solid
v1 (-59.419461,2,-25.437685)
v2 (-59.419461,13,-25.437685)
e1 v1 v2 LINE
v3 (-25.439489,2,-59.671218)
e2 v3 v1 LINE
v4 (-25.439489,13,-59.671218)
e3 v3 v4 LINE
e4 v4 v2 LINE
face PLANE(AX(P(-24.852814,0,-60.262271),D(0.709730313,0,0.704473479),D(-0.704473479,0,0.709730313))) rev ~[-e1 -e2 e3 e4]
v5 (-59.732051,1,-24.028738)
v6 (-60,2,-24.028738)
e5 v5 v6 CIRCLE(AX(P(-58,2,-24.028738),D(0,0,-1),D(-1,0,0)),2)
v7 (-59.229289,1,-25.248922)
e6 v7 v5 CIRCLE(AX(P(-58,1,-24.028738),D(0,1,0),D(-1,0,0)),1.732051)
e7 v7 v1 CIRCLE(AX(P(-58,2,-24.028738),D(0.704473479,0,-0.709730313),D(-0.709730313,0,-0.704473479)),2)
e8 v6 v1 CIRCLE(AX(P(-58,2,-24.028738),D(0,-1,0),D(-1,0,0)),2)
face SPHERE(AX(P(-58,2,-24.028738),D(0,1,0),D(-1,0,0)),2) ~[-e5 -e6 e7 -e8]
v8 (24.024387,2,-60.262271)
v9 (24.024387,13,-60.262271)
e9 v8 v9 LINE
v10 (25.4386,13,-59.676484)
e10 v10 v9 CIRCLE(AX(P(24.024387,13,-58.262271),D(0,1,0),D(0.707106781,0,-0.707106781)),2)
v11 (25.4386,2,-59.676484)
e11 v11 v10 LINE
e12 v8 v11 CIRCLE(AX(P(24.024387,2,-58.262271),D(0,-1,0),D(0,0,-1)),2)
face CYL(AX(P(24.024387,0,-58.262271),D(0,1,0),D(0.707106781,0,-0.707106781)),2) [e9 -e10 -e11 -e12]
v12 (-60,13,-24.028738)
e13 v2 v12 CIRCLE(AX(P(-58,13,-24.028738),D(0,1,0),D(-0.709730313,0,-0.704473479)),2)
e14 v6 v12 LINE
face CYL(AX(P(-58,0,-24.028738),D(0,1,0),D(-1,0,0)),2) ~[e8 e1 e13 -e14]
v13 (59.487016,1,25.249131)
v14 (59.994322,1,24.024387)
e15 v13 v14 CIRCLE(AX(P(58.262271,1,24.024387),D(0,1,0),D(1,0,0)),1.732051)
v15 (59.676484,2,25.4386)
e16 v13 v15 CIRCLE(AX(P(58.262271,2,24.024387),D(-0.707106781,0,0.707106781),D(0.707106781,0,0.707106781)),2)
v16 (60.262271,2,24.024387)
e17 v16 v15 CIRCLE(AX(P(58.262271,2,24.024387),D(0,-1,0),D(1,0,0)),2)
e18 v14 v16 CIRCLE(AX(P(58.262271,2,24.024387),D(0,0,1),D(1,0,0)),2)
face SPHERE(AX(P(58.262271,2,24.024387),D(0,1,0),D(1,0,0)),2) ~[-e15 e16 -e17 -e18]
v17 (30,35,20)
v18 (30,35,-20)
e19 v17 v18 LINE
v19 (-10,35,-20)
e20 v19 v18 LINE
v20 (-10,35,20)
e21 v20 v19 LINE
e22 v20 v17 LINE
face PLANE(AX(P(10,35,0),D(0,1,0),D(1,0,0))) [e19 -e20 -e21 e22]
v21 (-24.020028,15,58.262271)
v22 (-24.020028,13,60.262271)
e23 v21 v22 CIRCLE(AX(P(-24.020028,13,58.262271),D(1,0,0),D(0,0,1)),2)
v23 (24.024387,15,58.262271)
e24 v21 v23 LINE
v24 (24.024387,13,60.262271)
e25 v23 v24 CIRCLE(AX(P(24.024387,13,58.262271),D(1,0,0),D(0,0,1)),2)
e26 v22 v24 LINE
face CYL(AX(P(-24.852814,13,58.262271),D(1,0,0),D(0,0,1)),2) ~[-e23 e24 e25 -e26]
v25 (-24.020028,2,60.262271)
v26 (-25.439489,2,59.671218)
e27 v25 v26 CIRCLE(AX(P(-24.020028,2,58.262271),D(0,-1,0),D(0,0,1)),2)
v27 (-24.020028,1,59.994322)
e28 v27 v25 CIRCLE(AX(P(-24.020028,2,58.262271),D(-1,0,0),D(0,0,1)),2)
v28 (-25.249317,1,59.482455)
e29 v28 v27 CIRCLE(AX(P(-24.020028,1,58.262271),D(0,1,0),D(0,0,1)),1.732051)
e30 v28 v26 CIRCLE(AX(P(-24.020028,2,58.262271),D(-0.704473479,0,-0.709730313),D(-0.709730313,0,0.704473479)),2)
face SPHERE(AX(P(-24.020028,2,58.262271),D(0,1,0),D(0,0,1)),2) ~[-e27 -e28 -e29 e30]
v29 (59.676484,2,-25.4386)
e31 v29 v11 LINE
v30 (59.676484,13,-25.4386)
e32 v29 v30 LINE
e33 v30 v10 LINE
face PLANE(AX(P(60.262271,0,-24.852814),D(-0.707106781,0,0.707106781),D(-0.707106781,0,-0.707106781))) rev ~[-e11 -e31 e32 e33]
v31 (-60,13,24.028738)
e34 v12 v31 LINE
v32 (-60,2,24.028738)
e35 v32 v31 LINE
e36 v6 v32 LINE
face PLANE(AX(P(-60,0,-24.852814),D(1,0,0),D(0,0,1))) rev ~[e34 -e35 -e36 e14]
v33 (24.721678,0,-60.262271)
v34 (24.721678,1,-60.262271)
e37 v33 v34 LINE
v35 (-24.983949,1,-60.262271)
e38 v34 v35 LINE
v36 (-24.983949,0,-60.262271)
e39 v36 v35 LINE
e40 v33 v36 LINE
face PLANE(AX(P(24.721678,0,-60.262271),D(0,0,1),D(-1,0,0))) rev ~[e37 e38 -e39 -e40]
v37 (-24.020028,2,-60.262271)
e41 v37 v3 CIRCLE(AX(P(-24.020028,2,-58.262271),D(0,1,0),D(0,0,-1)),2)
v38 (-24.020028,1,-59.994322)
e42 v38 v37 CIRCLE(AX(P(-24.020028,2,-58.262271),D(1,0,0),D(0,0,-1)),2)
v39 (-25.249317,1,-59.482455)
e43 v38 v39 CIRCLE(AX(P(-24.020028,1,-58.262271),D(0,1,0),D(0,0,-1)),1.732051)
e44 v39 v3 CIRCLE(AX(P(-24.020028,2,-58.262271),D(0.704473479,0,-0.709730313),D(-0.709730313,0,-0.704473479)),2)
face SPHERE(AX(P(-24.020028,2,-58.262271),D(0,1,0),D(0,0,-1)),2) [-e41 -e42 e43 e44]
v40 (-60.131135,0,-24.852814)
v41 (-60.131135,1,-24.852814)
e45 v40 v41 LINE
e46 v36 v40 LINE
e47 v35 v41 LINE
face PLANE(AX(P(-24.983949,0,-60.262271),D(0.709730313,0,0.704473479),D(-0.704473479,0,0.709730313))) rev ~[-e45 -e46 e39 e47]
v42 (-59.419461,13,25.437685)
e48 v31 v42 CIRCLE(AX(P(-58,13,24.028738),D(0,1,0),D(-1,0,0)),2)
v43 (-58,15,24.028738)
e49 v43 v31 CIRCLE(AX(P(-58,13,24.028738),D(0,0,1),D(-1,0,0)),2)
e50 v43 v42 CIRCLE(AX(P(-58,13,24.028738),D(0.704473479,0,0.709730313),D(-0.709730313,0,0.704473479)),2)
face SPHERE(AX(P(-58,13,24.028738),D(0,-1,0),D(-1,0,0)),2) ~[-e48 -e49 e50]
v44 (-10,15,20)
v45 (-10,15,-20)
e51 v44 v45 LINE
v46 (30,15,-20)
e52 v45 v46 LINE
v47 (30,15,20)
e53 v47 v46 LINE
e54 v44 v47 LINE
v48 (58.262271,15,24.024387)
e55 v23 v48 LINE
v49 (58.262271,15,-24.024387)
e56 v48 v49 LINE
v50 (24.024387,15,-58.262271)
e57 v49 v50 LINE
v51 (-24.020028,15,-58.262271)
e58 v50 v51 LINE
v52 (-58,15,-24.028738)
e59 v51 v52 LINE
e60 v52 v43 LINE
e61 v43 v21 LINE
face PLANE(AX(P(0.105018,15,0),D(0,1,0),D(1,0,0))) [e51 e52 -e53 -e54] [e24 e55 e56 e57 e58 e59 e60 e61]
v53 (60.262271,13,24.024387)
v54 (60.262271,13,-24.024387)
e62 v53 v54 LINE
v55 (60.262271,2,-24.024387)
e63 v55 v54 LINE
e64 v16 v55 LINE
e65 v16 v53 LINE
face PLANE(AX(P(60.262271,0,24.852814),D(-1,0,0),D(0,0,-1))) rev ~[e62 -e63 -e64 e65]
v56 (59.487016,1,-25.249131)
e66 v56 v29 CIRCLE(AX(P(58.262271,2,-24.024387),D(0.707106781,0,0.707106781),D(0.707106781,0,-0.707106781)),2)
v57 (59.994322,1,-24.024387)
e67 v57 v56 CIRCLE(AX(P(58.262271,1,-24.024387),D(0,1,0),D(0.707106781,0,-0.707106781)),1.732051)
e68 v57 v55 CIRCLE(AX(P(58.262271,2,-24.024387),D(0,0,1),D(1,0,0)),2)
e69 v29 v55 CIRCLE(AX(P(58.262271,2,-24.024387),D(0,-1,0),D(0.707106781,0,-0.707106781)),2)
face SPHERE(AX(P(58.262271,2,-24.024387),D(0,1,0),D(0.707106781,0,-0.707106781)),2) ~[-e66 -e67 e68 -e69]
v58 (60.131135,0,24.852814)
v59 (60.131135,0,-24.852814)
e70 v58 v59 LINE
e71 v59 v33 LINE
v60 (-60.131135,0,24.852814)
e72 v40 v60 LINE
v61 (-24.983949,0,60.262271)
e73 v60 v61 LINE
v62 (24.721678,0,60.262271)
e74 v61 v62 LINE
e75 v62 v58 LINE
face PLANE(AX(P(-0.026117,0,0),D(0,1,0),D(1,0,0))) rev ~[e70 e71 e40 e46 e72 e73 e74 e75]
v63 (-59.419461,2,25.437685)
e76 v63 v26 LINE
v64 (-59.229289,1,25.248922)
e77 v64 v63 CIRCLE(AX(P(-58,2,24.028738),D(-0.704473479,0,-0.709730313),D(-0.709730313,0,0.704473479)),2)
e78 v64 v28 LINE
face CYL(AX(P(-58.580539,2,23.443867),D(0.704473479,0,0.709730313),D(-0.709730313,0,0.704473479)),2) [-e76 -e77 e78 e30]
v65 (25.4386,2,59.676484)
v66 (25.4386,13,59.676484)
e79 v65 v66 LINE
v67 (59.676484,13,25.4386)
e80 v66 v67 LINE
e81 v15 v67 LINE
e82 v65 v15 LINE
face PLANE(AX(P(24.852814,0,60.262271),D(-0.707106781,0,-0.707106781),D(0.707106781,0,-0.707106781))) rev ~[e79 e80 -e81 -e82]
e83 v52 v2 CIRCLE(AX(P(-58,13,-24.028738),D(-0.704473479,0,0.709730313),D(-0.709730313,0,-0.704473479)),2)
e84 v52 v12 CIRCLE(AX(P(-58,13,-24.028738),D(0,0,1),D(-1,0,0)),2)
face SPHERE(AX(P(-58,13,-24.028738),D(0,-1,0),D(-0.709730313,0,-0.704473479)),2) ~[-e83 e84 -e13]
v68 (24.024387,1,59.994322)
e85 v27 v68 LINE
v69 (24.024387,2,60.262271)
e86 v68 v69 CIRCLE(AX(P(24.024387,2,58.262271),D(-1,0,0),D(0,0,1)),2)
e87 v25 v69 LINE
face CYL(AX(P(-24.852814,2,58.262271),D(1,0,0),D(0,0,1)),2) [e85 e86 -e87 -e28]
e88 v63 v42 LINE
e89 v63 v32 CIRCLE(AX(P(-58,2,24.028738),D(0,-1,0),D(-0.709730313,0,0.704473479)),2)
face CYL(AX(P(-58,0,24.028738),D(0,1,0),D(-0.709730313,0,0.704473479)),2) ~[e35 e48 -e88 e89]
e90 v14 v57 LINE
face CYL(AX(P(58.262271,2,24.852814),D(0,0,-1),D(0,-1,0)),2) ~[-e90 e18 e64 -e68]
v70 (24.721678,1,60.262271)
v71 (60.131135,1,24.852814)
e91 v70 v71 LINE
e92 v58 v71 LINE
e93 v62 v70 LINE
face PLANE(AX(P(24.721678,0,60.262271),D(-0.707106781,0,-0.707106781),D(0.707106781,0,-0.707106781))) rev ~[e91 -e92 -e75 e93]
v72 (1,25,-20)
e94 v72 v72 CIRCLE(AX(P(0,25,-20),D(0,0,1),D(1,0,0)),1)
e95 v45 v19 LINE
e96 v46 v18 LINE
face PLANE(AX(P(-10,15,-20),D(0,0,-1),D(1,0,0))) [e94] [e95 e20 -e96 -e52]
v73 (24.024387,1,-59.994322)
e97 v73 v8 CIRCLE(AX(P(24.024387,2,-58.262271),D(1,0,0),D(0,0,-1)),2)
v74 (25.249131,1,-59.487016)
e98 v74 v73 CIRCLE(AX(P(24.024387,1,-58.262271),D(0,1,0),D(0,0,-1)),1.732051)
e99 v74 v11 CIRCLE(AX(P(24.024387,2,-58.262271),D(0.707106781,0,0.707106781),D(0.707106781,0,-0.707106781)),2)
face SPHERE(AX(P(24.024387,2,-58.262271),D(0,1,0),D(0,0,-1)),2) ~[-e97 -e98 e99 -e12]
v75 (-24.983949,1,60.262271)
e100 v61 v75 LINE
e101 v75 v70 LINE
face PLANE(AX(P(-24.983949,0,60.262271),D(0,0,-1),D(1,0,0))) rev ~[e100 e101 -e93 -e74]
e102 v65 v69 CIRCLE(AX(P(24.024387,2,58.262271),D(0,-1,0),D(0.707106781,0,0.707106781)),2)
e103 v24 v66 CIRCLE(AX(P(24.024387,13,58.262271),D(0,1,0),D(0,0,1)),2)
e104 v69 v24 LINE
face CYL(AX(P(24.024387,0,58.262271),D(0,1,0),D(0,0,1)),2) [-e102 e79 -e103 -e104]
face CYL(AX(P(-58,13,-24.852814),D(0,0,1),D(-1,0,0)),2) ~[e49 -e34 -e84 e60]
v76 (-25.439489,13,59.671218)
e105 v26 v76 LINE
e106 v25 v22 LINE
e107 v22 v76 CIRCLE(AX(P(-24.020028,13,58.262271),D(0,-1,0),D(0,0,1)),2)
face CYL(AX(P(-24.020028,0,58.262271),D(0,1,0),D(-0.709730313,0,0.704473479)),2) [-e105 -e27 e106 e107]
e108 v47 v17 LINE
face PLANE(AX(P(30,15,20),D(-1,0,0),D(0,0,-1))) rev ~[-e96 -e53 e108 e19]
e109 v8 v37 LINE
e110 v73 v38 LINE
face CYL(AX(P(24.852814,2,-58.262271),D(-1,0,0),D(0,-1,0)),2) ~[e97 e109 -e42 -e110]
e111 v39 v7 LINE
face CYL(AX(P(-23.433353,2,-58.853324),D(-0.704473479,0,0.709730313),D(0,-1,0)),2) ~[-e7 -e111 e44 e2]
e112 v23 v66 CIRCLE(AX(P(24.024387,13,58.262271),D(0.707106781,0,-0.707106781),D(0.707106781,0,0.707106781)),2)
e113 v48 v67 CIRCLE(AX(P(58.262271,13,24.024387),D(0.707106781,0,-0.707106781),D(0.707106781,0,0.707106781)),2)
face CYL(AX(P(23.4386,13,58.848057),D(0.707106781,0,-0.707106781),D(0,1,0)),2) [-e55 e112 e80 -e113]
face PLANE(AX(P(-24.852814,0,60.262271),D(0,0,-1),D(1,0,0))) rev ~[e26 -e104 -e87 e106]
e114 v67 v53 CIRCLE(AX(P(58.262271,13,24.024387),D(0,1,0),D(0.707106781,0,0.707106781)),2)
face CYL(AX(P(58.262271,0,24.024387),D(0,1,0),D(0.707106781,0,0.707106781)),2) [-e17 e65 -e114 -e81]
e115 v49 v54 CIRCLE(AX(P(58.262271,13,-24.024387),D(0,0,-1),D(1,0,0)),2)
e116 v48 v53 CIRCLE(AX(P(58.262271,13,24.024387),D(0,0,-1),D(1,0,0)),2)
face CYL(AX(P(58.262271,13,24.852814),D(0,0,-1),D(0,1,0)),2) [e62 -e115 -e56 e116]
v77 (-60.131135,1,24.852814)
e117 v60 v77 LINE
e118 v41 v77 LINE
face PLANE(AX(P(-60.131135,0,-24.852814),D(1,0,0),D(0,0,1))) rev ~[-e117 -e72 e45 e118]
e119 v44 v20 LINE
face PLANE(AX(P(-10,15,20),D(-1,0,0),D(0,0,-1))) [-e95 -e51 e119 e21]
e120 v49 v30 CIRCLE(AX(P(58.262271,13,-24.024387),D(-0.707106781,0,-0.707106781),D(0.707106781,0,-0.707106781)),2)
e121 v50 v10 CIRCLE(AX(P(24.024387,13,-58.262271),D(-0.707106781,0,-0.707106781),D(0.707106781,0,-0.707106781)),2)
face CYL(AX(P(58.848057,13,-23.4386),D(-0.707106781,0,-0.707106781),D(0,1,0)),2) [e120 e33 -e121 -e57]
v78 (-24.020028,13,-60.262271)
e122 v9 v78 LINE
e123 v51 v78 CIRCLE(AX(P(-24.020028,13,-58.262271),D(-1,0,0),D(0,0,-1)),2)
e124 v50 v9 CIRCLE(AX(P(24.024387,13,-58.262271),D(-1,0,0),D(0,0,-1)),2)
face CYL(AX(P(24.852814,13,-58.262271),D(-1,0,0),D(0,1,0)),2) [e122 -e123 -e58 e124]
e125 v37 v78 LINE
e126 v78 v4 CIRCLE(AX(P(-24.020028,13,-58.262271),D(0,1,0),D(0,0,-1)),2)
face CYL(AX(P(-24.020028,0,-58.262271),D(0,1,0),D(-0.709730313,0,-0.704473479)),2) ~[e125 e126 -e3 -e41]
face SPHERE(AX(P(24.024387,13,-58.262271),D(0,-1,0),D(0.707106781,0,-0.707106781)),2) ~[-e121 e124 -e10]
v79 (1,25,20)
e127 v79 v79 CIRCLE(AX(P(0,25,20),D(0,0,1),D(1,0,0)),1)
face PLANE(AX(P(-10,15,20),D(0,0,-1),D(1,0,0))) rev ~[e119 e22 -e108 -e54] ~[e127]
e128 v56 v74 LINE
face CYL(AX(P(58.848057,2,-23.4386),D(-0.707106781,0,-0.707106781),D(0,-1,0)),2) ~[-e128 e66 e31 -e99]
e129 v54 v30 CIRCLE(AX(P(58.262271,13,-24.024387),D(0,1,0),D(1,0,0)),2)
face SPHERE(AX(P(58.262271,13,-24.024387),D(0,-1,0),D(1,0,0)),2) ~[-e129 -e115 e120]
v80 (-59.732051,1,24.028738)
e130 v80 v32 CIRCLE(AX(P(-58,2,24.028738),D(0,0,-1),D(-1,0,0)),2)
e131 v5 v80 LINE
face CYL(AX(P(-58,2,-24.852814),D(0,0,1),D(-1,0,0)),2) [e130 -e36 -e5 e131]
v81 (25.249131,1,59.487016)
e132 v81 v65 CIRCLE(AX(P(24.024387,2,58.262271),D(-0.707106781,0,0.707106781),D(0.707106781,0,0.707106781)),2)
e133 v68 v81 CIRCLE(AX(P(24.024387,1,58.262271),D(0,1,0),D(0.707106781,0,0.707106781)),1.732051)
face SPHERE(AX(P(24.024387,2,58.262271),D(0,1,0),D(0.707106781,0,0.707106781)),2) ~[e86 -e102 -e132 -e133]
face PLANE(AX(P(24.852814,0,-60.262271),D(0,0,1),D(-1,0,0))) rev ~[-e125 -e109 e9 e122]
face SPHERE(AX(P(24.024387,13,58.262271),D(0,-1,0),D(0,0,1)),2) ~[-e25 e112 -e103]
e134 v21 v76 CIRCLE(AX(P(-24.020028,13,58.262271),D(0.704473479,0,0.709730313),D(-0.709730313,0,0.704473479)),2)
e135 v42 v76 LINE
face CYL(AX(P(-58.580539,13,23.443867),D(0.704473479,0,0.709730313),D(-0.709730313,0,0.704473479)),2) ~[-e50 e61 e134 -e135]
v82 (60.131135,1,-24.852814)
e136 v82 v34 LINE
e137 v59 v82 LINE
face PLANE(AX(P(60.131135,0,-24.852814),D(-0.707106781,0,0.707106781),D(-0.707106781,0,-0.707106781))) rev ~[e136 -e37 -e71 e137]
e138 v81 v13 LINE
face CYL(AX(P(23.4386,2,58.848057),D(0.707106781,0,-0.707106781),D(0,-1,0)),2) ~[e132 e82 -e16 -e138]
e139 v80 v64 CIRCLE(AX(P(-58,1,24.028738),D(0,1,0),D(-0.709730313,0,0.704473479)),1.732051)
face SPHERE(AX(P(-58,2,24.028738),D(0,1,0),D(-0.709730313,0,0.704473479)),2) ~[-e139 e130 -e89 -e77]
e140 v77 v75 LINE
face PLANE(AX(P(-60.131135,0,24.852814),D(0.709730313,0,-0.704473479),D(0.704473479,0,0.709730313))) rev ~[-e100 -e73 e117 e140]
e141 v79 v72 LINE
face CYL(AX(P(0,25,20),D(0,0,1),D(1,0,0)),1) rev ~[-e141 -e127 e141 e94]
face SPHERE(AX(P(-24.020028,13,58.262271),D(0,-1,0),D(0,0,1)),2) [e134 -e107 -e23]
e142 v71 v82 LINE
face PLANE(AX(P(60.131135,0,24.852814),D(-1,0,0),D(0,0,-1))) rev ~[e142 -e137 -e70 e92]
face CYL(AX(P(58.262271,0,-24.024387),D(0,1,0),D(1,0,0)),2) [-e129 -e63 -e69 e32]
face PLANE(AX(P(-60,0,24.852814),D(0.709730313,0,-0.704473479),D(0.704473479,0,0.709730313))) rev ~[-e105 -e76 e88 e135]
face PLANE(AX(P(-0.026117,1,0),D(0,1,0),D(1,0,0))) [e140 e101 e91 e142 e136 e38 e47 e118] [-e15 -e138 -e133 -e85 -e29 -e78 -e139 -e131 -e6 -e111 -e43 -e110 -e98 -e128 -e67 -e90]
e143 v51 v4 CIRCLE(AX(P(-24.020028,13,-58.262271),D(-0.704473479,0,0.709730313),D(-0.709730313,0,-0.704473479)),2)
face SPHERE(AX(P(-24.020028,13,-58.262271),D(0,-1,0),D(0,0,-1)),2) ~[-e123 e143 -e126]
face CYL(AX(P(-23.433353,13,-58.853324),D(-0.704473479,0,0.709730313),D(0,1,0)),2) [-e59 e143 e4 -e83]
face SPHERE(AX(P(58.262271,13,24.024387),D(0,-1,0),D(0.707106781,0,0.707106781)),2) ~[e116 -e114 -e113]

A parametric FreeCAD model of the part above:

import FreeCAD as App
import Part
import Sketcher
Q = App.Units.Quantity


def edges_at(feature, points):
    """Names of the edges that pass closest to the given points."""
    edges = feature.Shape.Edges
    near = lambda p: min(range(len(edges)), key=lambda i: edges[i].distToShape(Part.Vertex(*p))[0])
    return sorted({f"Edge{near(p) + 1}" for p in points})

doc = App.newDocument("Part")
body = doc.addObject("PartDesign::Body", "Body")

# Sketch on XZ plane
sketch1 = body.newObject("Sketcher::SketchObject", "Sketch")
sketch1.AttachmentSupport = (doc.getObject("XZ_Plane"), [""])
sketch1.MapMode = "FlatFace"
sketch1.addGeometry([
    Part.LineSegment(App.Vector(-60, 25, 0), App.Vector(-25, 60, 0)),  # 0
    Part.LineSegment(App.Vector(-25, 60, 0), App.Vector(25, 60, 0)),  # 1
    Part.LineSegment(App.Vector(25, 60, 0), App.Vector(60, 25, 0)),  # 2
    Part.LineSegment(App.Vector(60, 25, 0), App.Vector(60, -25, 0)),  # 3
    Part.LineSegment(App.Vector(60, -25, 0), App.Vector(25, -60, 0)),  # 4
    Part.LineSegment(App.Vector(25, -60, 0), App.Vector(-25, -60, 0)),  # 5
    Part.LineSegment(App.Vector(-25, -60, 0), App.Vector(-60, -25, 0)),  # 6
    Part.LineSegment(App.Vector(-60, -25, 0), App.Vector(-60, 25, 0)),  # 7
], False)
sketch1.addConstraint([
    Sketcher.Constraint("Coincident", 0, 2, 1, 1),
    Sketcher.Constraint("Coincident", 1, 2, 2, 1),
    Sketcher.Constraint("Coincident", 2, 2, 3, 1),
    Sketcher.Constraint("Coincident", 3, 2, 4, 1),
    Sketcher.Constraint("Coincident", 4, 2, 5, 1),
    Sketcher.Constraint("Coincident", 5, 2, 6, 1),
    Sketcher.Constraint("Coincident", 6, 2, 7, 1),
    Sketcher.Constraint("Coincident", 7, 2, 0, 1),
    Sketcher.Constraint("Horizontal", 1),
    Sketcher.Constraint("Vertical", 3),
    Sketcher.Constraint("Horizontal", 5),
    Sketcher.Constraint("Vertical", 7),
    Sketcher.Constraint("Symmetric", 0, 2, 4, 2, -1, 1),
    Sketcher.Constraint("Perpendicular", 2, 4),
    Sketcher.Constraint("Horizontal", 3, 2, 6, 2),
    Sketcher.Constraint("Horizontal", 2, 2, 7, 2),
    Sketcher.Constraint("Vertical", 1, 2, 4, 2),
    Sketcher.Constraint("Vertical", 0, 2, 5, 2),
    Sketcher.Constraint("Equal", 5, 3),
    Sketcher.Constraint("Equal", 2, 4),
    Sketcher.Constraint("DistanceX", 6, 2, -1, 1, Q("60 mm")),
    Sketcher.Constraint("DistanceX", 1, 1, 1, 2, Q("49.705627 mm")),
    Sketcher.Constraint("DistanceY", -1, 1, 0, 2, Q("60.262271 mm")),
])
pad1 = body.newObject("PartDesign::Pad", "Pad")
pad1.Profile = sketch1
pad1.Length = 15
pad1.Reversed = True

# Sketch on XZ plane
sketch2 = body.newObject("Sketcher::SketchObject", "Sketch001")
sketch2.AttachmentSupport = (doc.getObject("XZ_Plane"), [""])
sketch2.MapMode = "FlatFace"
sketch2.AttachmentOffset = App.Placement(App.Vector(0, 0, -15), App.Rotation())
sketch2.addGeometry([
    Part.LineSegment(App.Vector(-10, -20, 0), App.Vector(-10, 20, 0)),
    Part.LineSegment(App.Vector(-10, 20, 0), App.Vector(30, 20, 0)),
    Part.LineSegment(App.Vector(30, 20, 0), App.Vector(30, -20, 0)),
    Part.LineSegment(App.Vector(30, -20, 0), App.Vector(-10, -20, 0)),
], False)
sketch2.addConstraint([
    Sketcher.Constraint("Coincident", 0, 2, 1, 1),
    Sketcher.Constraint("Coincident", 1, 2, 2, 1),
    Sketcher.Constraint("Coincident", 2, 2, 3, 1),
    Sketcher.Constraint("Coincident", 3, 2, 0, 1),
    Sketcher.Constraint("Vertical", 0),
    Sketcher.Constraint("Horizontal", 1),
    Sketcher.Constraint("Vertical", 2),
    Sketcher.Constraint("Horizontal", 3),
    Sketcher.Constraint("Equal", 3, 0),
    Sketcher.Constraint("DistanceX", 1, 1, 1, 2, Q("40 mm")),
    Sketcher.Constraint("DistanceX", 0, 2, -1, 1, Q("10 mm")),
    Sketcher.Constraint("DistanceY", -1, 1, 0, 2, Q("20 mm")),
])
pad2 = body.newObject("PartDesign::Pad", "Pad001")
pad2.Profile = sketch2
pad2.Length = 20
pad2.Reversed = True
doc.recompute()

fillet = body.newObject("PartDesign::Fillet", "Fillet")
fillet.Base = (pad2, edges_at(pad2, [
    (0, 0, 60.262),
    (-42.426, 0, 42.558),
    (-60, 0, 0),
    (-42.426, 0, -42.558),
    (-42.426, 15, 42.558),
    (-24.853, 7.5, -60.262),
    (24.853, 7.5, -60.262),
    (60.262, 7.5, -24.853),
    (60.262, 7.5, 24.853),
    (24.853, 7.5, 60.262),
    (-24.853, 7.5, 60.262),
    (-60, 7.5, 24.853),
    (-60, 7.5, -24.853),
    (0, 15, 60.262),
    (42.558, 15, 42.558),
    (60.262, 15, 0),
    (42.558, 15, -42.558),
    (0, 15, -60.262),
    (-42.426, 15, -42.558),
    (0, 0, -60.262),
    (-60, 15, 0),
    (42.558, 0, -42.558),
    (60.262, 0, 0),
    (42.558, 0, 42.558),
]))
fillet.Radius = 2

# Sketch on XY plane
sketch3 = body.newObject("Sketcher::SketchObject", "Sketch002")
sketch3.AttachmentSupport = (doc.getObject("XY_Plane"), [""])
sketch3.MapMode = "FlatFace"
sketch3.AttachmentOffset = App.Placement(App.Vector(0, 0, 20), App.Rotation())
sketch3.addGeometry(Part.Circle(App.Vector(0, 25, 0), App.Vector(0, 0, 1), 1), False)
sketch3.addConstraint([
    Sketcher.Constraint("PointOnObject", 0, 3, -2),
    Sketcher.Constraint("Diameter", 0, Q("2 mm")),
    Sketcher.Constraint("DistanceY", -1, 1, 0, 3, Q("25 mm")),
])
pocket1 = body.newObject("PartDesign::Pocket", "Pocket")
pocket1.Profile = sketch3
pocket1.Length = 40

# Sketch on XZ plane
sketch4 = body.newObject("Sketcher::SketchObject", "Sketch003")
sketch4.AttachmentSupport = (doc.getObject("XZ_Plane"), [""])
sketch4.MapMode = "FlatFace"
sketch4.addGeometry([
    Part.LineSegment(App.Vector(-60, 25, 0), App.Vector(-25, 60, 0)),  # 0
    Part.LineSegment(App.Vector(-25, 60, 0), App.Vector(25, 60, 0)),  # 1
    Part.LineSegment(App.Vector(25, 60, 0), App.Vector(60, 25, 0)),  # 2
    Part.LineSegment(App.Vector(60, 25, 0), App.Vector(60, -25, 0)),  # 3
    Part.LineSegment(App.Vector(60, -25, 0), App.Vector(25, -60, 0)),  # 4
    Part.LineSegment(App.Vector(25, -60, 0), App.Vector(-25, -60, 0)),  # 5
    Part.LineSegment(App.Vector(-25, -60, 0), App.Vector(-60, -25, 0)),  # 6
    Part.LineSegment(App.Vector(-60, -25, 0), App.Vector(-60, 25, 0)),  # 7
], False)
sketch4.addConstraint([
    Sketcher.Constraint("Coincident", 0, 2, 1, 1),
    Sketcher.Constraint("Coincident", 1, 2, 2, 1),
    Sketcher.Constraint("Coincident", 2, 2, 3, 1),
    Sketcher.Constraint("Coincident", 3, 2, 4, 1),
    Sketcher.Constraint("Coincident", 4, 2, 5, 1),
    Sketcher.Constraint("Coincident", 5, 2, 6, 1),
    Sketcher.Constraint("Coincident", 6, 2, 7, 1),
    Sketcher.Constraint("Coincident", 7, 2, 0, 1),
    Sketcher.Constraint("Horizontal", 1),
    Sketcher.Constraint("Vertical", 3),
    Sketcher.Constraint("Horizontal", 5),
    Sketcher.Constraint("Vertical", 7),
    Sketcher.Constraint("Symmetric", 2, 2, 6, 2, -1, 1),
    Sketcher.Constraint("Symmetric", 1, 2, 4, 2, -1),
    Sketcher.Constraint("Perpendicular", 2, 4),
    Sketcher.Constraint("Horizontal", 3, 2, 6, 2),
    Sketcher.Constraint("Horizontal", 2, 2, 7, 2),
    Sketcher.Constraint("Vertical", 0, 2, 5, 2),
    Sketcher.Constraint("Equal", 5, 3),
    Sketcher.Constraint("DistanceX", 1, 1, 1, 2, Q("49.705627 mm")),
    Sketcher.Constraint("DistanceX", 0, 2, -1, 1, Q("24.983949 mm")),
    Sketcher.Constraint("DistanceY", -1, 1, 0, 2, Q("60.262271 mm")),
])
pad3 = body.newObject("PartDesign::Pad", "Pad002")
pad3.Profile = sketch4
pad3.Length = 1
pad3.Reversed = True

doc.recompute()
